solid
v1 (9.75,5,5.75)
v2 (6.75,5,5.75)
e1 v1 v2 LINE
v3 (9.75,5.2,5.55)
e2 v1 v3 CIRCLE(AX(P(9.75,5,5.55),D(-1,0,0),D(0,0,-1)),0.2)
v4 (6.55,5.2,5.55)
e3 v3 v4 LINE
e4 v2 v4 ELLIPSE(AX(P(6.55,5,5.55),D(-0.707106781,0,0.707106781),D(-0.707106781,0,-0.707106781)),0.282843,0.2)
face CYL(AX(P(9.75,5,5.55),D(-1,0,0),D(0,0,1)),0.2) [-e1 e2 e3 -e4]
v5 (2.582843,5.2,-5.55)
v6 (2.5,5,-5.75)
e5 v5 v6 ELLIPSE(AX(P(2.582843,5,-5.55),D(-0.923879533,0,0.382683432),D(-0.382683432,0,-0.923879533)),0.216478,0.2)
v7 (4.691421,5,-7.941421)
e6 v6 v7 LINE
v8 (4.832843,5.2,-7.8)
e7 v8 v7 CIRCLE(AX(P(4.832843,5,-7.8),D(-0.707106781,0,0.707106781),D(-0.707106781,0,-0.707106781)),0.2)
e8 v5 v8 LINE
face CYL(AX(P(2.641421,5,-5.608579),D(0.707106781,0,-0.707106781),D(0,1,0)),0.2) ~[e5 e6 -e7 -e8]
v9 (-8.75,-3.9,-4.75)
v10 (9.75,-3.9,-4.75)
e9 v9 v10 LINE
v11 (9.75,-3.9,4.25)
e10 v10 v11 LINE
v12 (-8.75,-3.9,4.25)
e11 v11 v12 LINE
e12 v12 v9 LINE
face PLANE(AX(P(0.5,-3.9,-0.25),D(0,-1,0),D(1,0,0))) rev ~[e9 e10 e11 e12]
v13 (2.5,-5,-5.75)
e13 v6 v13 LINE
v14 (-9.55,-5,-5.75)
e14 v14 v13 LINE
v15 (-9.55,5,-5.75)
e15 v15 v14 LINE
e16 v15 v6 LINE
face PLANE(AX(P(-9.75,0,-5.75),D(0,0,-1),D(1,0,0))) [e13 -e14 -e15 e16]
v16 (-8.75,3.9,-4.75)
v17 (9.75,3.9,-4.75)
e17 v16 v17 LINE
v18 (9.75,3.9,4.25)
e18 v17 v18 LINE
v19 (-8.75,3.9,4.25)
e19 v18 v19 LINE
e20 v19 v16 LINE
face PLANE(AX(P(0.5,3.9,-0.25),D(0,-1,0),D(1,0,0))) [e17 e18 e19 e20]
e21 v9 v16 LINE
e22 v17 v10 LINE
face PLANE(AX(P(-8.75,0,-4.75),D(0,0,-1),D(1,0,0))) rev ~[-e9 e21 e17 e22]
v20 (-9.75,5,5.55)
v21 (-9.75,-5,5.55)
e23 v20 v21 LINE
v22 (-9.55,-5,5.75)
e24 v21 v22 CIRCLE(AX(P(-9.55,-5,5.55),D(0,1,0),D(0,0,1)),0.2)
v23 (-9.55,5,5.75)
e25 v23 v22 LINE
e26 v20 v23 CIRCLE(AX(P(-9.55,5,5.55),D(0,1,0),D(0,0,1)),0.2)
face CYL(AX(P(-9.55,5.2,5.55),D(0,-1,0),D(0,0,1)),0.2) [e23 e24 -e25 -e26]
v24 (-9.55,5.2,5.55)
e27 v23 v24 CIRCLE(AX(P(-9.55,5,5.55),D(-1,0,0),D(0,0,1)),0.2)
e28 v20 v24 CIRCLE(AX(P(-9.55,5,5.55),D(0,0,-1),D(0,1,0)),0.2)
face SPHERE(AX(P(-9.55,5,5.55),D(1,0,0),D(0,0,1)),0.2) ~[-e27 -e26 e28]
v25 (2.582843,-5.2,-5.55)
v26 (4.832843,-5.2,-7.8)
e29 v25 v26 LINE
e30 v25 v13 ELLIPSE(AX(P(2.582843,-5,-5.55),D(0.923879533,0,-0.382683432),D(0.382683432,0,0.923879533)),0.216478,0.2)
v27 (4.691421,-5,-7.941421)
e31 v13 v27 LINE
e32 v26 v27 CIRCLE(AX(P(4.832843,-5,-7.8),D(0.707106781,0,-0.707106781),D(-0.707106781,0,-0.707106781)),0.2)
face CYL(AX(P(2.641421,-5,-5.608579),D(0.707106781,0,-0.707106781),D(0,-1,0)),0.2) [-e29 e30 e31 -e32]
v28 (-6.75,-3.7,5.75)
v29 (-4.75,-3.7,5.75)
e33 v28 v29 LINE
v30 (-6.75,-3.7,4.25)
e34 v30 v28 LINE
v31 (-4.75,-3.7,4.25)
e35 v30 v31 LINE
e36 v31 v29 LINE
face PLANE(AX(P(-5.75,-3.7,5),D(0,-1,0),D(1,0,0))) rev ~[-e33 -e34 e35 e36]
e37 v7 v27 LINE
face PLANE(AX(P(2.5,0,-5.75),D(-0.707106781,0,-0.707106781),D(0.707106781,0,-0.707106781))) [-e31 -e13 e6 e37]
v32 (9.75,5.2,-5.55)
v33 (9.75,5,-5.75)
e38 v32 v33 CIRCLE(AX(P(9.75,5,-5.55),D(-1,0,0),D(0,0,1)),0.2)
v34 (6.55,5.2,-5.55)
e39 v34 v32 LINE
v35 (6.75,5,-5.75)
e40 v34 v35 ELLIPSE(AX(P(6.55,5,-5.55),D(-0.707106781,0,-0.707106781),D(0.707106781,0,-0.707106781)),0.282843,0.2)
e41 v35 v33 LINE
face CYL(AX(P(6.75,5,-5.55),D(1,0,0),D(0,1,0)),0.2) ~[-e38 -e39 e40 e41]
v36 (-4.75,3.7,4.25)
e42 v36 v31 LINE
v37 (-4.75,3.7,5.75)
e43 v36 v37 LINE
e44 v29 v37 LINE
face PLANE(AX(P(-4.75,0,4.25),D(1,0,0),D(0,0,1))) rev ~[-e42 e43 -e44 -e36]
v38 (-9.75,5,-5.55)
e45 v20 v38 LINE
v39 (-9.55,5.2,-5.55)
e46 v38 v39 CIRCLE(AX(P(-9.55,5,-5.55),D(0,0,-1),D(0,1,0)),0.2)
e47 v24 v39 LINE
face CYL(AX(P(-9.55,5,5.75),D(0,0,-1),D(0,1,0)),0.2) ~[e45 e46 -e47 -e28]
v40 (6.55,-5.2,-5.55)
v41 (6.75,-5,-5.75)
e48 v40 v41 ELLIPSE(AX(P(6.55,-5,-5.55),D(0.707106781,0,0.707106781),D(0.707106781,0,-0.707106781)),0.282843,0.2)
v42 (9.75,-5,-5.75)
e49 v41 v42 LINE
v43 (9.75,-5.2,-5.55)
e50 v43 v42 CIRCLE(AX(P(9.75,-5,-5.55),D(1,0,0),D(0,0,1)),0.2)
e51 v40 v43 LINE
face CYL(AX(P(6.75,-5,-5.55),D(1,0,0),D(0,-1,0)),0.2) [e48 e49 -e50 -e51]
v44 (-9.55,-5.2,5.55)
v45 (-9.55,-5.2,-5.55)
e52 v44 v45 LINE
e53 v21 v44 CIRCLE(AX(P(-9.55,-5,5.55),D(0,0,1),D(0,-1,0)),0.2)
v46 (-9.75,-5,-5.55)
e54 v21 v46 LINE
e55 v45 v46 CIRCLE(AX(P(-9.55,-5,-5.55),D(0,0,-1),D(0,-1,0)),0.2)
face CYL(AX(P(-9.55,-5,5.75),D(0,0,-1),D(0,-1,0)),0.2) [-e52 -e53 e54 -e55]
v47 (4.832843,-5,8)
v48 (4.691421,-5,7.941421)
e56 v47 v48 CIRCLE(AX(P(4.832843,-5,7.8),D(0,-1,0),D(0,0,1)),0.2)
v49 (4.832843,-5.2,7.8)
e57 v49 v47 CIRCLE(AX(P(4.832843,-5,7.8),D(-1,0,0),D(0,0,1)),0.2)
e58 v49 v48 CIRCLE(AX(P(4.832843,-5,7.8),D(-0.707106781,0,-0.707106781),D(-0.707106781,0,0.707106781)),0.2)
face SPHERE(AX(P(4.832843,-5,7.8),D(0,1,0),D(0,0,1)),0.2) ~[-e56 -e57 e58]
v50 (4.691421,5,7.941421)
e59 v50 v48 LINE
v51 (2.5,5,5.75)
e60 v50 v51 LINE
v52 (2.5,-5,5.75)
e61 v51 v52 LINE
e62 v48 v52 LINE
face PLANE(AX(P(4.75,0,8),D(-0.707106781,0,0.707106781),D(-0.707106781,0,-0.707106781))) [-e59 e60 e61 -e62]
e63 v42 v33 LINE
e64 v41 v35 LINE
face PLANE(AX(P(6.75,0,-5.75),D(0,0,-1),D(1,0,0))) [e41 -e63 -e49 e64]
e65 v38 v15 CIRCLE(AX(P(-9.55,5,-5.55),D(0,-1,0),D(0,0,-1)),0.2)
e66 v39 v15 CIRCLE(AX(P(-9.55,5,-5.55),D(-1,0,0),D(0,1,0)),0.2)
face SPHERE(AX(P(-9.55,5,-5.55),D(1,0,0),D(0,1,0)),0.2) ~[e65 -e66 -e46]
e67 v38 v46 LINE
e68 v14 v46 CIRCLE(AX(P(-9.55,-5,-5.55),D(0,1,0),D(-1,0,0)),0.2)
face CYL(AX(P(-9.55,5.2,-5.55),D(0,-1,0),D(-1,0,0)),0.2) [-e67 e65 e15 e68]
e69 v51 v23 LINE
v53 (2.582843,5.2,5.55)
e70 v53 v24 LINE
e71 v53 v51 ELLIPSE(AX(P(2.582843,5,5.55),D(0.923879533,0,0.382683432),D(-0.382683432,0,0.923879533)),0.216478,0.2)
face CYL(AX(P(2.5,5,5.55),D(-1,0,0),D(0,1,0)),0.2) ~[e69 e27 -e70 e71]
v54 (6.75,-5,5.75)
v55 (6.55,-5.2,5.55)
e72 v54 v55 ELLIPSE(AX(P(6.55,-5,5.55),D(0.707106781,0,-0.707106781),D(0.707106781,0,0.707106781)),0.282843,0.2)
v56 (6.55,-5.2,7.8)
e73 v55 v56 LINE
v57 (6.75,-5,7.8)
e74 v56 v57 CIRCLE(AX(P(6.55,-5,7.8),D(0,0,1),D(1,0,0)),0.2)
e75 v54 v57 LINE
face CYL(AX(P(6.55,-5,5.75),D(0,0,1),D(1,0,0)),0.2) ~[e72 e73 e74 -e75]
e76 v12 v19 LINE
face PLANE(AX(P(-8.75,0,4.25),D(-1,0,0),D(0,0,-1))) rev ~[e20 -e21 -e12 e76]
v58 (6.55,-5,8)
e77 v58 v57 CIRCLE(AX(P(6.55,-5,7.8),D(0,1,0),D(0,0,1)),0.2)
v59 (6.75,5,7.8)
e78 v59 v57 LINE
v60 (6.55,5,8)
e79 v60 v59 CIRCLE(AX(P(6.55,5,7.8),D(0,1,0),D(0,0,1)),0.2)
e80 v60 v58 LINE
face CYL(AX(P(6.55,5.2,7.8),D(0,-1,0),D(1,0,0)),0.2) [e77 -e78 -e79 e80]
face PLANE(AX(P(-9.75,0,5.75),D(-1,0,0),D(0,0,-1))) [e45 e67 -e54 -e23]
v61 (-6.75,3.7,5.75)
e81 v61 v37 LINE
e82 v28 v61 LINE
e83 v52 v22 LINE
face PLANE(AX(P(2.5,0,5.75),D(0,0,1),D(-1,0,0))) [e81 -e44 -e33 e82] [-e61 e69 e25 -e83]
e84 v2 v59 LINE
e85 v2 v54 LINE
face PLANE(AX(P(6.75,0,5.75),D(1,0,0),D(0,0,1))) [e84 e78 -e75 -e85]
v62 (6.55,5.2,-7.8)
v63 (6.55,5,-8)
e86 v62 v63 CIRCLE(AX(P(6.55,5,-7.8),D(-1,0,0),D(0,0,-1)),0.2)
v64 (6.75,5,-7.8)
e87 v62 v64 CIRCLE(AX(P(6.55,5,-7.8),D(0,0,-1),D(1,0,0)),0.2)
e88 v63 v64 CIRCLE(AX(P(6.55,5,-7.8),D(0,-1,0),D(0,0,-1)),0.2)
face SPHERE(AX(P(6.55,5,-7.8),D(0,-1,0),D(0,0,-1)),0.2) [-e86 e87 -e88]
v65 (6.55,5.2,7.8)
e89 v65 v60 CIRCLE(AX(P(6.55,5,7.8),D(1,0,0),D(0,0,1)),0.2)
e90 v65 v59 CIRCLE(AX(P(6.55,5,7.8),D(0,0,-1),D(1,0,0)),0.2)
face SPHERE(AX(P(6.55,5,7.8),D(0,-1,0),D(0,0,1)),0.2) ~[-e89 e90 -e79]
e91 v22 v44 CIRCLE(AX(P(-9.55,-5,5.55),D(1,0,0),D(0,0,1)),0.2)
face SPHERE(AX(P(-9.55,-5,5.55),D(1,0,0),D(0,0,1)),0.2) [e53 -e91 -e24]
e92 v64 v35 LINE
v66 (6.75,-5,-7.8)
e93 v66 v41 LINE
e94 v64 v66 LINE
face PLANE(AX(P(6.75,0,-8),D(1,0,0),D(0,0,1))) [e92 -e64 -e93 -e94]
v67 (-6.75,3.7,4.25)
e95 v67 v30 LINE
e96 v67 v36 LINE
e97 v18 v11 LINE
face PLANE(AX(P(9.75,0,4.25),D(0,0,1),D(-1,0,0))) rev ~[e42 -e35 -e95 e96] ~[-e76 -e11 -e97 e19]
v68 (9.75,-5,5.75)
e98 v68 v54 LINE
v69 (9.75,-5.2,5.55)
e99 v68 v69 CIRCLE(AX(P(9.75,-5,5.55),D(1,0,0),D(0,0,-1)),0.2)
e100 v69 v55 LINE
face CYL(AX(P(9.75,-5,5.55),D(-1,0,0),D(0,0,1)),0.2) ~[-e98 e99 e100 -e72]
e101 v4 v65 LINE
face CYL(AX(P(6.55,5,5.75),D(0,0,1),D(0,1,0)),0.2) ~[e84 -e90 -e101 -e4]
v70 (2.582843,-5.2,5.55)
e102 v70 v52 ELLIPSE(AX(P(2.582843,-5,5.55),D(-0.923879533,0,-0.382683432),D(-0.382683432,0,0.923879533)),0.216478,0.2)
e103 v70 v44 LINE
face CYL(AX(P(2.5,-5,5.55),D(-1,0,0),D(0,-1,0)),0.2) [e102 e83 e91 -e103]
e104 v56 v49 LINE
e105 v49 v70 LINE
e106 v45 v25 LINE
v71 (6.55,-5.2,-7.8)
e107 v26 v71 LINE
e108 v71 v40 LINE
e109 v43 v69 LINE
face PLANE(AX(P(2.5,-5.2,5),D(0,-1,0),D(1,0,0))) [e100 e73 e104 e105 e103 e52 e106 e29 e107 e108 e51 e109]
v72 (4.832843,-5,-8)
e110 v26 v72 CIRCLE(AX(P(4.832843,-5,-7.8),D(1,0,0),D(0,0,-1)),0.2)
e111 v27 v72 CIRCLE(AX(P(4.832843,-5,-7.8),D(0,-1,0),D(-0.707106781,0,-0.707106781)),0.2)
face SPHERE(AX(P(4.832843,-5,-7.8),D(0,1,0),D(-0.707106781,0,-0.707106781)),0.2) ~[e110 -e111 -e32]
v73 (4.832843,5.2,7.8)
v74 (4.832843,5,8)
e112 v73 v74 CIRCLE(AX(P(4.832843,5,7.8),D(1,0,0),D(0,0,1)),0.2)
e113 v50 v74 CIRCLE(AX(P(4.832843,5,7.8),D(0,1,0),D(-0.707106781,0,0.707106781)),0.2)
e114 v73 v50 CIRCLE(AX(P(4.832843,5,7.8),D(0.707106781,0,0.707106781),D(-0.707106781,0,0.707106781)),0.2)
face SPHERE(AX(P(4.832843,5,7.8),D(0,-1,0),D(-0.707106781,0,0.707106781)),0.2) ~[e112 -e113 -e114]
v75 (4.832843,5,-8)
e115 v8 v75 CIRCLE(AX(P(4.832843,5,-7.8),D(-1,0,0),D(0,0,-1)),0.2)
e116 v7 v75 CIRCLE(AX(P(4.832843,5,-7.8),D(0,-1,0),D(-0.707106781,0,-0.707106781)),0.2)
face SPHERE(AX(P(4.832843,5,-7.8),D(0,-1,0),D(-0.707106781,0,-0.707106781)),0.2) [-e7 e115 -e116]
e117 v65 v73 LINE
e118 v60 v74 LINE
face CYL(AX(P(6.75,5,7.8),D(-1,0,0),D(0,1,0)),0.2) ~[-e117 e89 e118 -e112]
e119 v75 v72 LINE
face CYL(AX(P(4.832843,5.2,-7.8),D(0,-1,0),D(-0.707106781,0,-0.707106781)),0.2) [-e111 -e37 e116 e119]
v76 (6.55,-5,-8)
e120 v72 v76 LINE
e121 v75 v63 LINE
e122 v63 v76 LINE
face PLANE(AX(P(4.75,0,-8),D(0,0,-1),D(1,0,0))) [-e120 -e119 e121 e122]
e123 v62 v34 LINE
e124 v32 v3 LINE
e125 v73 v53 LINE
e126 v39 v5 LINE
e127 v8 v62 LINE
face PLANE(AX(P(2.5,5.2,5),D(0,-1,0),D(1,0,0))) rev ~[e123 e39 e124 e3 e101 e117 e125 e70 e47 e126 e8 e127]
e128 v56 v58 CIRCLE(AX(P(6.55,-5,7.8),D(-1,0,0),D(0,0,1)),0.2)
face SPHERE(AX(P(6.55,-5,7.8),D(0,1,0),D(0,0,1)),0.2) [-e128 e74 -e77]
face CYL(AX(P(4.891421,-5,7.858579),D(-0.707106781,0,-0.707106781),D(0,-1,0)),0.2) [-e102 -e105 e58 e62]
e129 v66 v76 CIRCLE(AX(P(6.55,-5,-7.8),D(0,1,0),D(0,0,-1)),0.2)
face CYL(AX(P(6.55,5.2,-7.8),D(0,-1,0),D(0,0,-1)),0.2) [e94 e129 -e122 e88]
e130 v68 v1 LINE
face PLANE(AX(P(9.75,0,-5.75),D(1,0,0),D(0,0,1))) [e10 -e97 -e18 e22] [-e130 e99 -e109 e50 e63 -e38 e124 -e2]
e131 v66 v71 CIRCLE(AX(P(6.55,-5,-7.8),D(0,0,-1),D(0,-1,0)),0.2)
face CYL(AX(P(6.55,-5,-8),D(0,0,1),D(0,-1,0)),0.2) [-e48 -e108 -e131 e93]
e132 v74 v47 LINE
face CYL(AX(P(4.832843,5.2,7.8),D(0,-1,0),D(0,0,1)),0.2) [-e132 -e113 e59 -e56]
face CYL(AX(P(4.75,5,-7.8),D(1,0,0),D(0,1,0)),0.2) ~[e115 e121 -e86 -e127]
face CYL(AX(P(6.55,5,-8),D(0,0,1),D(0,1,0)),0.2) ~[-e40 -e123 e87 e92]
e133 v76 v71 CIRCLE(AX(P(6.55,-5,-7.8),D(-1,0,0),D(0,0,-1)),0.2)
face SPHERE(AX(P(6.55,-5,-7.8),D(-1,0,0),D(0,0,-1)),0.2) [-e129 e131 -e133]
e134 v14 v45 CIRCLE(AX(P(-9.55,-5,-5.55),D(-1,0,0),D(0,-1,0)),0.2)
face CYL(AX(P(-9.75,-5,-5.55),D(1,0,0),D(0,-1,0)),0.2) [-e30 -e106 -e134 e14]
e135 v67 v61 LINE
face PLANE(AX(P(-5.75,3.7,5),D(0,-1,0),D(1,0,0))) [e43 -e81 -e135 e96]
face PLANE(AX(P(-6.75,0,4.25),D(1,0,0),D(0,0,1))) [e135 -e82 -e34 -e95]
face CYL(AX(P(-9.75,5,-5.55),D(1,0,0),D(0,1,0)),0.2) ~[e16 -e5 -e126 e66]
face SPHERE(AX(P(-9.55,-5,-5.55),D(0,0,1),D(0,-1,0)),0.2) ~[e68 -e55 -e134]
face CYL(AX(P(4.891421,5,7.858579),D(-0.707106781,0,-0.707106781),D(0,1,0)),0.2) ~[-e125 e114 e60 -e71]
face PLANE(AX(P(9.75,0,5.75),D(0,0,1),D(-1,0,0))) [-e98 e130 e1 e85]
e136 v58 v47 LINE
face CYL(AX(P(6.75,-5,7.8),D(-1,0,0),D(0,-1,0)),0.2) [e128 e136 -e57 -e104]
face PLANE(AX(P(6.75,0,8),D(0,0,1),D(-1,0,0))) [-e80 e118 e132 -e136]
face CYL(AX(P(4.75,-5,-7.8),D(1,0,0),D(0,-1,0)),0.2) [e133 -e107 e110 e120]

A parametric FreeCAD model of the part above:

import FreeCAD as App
import Part
import Sketcher

V = App.Vector


def edges_at(feature, points):
    """Names of the edges that pass closest to the given points."""
    edges = feature.Shape.Edges
    near = lambda p: min(range(len(edges)), key=lambda i: edges[i].distToShape(Part.Vertex(*p))[0])
    return sorted({f"Edge{near(p) + 1}" for p in points})


def add_polygon(sketch, points):
    """Adds a closed chain of lines whose ends are joined by coincident constraints."""
    first, n = sketch.GeometryCount, len(points)
    for a, b in zip(points, points[1:] + points[:1]):
        sketch.addGeometry(Part.LineSegment(App.Vector(*a, 0), App.Vector(*b, 0)), False)
    for i in range(n):
        sketch.addConstraint(Sketcher.Constraint("Coincident", first + i, 2, first + (i + 1) % n, 1))

doc = App.newDocument("Part")
body = doc.addObject("PartDesign::Body", "Body")

# Sketch on XZ plane
sketch1 = body.newObject("Sketcher::SketchObject", "Sketch")
sketch1.AttachmentSupport = (doc.getObject("XZ_Plane"), [""])
sketch1.MapMode = "FlatFace"
add_polygon(sketch1, [(9.8, 5.8), (6.8, 5.8), (6.8, 8), (4.8, 8), (2.5, 5.8), (-9.8, 5.8), (-9.8, -5.8), (2.5, -5.8), (4.8, -8), (6.8, -8), (6.8, -5.8), (9.8, -5.8)])  # lines 0-11
sketch1.addConstraint(Sketcher.Constraint("Horizontal", 0))
sketch1.addConstraint(Sketcher.Constraint("Vertical", 1))
sketch1.addConstraint(Sketcher.Constraint("Horizontal", 2))
sketch1.addConstraint(Sketcher.Constraint("Horizontal", 4))
sketch1.addConstraint(Sketcher.Constraint("Vertical", 5))
sketch1.addConstraint(Sketcher.Constraint("Horizontal", 6))
sketch1.addConstraint(Sketcher.Constraint("Horizontal", 8))
sketch1.addConstraint(Sketcher.Constraint("Vertical", 9))
sketch1.addConstraint(Sketcher.Constraint("Horizontal", 10))
sketch1.addConstraint(Sketcher.Constraint("Vertical", 11))
sketch1.addConstraint(Sketcher.Constraint("Symmetric", 4, 2, 10, 2, -1, 1))
sketch1.addConstraint(Sketcher.Constraint("Symmetric", 3, 2, 6, 2, -1))
sketch1.addConstraint(Sketcher.Constraint("Symmetric", 2, 2, 7, 2, -1))
sketch1.addConstraint(Sketcher.Constraint("Symmetric", 0, 2, 9, 2, -1))
sketch1.addConstraint(Sketcher.Constraint("Perpendicular", 3, 7))
sketch1.addConstraint(Sketcher.Constraint("DistanceX", 0, 2, 0, 1, 3.0))
sketch1.addConstraint(Sketcher.Constraint("DistanceX", 2, 2, 2, 1, 2.0))
sketch1.addConstraint(Sketcher.Constraint("DistanceY", 5, 2, 5, 1, 11.5))
sketch1.addConstraint(Sketcher.Constraint("DistanceY", -1, 1, 1, 2, 8.0))
sketch1.addConstraint(Sketcher.Constraint("DistanceX", 4, 2, 4, 1, 12.25))
pad1 = body.newObject("PartDesign::Pad", "Pad")
pad1.Profile = sketch1
pad1.Length = 10.4
pad1.Midplane = True

# Sketch on XZ plane
sketch2 = body.newObject("Sketcher::SketchObject", "Sketch001")
sketch2.AttachmentSupport = (doc.getObject("XZ_Plane"), [""])
sketch2.MapMode = "FlatFace"
add_polygon(sketch2, [(-6.8, 5.8), (-6.8, 4.2), (-4.8, 4.2), (-4.8, 5.8)])  # lines 0-3
sketch2.addConstraint(Sketcher.Constraint("Vertical", 0))
sketch2.addConstraint(Sketcher.Constraint("Horizontal", 1))
sketch2.addConstraint(Sketcher.Constraint("Vertical", 2))
sketch2.addConstraint(Sketcher.Constraint("Horizontal", 3))
sketch2.addConstraint(Sketcher.Constraint("DistanceX", 1, 1, 1, 2, 2.0))
sketch2.addConstraint(Sketcher.Constraint("DistanceY", 0, 2, 0, 1, 1.5))
sketch2.addConstraint(Sketcher.Constraint("DistanceX", 0, 2, -1, 1, 6.75))
sketch2.addConstraint(Sketcher.Constraint("DistanceY", -1, 1, 0, 2, 4.25))
pocket1 = body.newObject("PartDesign::Pocket", "Pocket")
pocket1.Profile = sketch2
pocket1.Length = 7.4
pocket1.Midplane = True

# Sketch on XZ plane
sketch3 = body.newObject("Sketcher::SketchObject", "Sketch002")
sketch3.AttachmentSupport = (doc.getObject("XZ_Plane"), [""])
sketch3.MapMode = "FlatFace"
add_polygon(sketch3, [(-9, -5), (10, -5), (10, 4), (-9, 4)])  # lines 0-3
sketch3.addConstraint(Sketcher.Constraint("Horizontal", 0))
sketch3.addConstraint(Sketcher.Constraint("Vertical", 1))
sketch3.addConstraint(Sketcher.Constraint("Horizontal", 2))
sketch3.addConstraint(Sketcher.Constraint("Vertical", 3))
sketch3.addConstraint(Sketcher.Constraint("DistanceY", 1, 1, 1, 2, 9.0))
sketch3.addConstraint(Sketcher.Constraint("DistanceX", 0, 1, 0, 2, 18.5))
sketch3.addConstraint(Sketcher.Constraint("DistanceX", -1, 1, 0, 2, 9.75))
sketch3.addConstraint(Sketcher.Constraint("DistanceY", 0, 2, -1, 1, 4.75))
pocket2 = body.newObject("PartDesign::Pocket", "Pocket001")
pocket2.Profile = sketch3
pocket2.Length = 7.8
pocket2.Midplane = True
doc.recompute()

fillet = body.newObject("PartDesign::Fillet", "Fillet")
fillet.Base = (pocket2, edges_at(pocket2, [
    (-3.625, -5.2, 5.75),
    (3.625, -5.2, 6.875),
    (6.75, 0, 8),
    (4.75, 0, 8),
    (5.75, -5.2, 8),
    (6.75, -5.2, 6.875),
    (8.25, -5.2, 5.75),
    (8.25, 5.2, 5.75),
    (-3.625, 5.2, 5.75),
    (3.625, 5.2, 6.875),
    (5.75, 5.2, 8),
    (-9.75, 0, 5.75),
    (-9.75, -5.2, 0),
    (-3.625, -5.2, -5.75),
    (5.75, -5.2, -8),
    (8.25, -5.2, -5.75),
    (6.75, 0, -8),
    (4.75, 0, -8),
    (3.625, 5.2, -6.875),
    (3.625, -5.2, -6.875),
    (5.75, 5.2, -8),
    (-3.625, 5.2, -5.75),
    (8.25, 5.2, -5.75),
    (6.75, 5.2, -6.875),
    (-9.75, 5.2, 0),
    (-9.75, 0, -5.75),
    (6.75, 5.2, 6.875),
    (6.75, -5.2, -6.875),
]))
fillet.Radius = 0.2

doc.recompute()
